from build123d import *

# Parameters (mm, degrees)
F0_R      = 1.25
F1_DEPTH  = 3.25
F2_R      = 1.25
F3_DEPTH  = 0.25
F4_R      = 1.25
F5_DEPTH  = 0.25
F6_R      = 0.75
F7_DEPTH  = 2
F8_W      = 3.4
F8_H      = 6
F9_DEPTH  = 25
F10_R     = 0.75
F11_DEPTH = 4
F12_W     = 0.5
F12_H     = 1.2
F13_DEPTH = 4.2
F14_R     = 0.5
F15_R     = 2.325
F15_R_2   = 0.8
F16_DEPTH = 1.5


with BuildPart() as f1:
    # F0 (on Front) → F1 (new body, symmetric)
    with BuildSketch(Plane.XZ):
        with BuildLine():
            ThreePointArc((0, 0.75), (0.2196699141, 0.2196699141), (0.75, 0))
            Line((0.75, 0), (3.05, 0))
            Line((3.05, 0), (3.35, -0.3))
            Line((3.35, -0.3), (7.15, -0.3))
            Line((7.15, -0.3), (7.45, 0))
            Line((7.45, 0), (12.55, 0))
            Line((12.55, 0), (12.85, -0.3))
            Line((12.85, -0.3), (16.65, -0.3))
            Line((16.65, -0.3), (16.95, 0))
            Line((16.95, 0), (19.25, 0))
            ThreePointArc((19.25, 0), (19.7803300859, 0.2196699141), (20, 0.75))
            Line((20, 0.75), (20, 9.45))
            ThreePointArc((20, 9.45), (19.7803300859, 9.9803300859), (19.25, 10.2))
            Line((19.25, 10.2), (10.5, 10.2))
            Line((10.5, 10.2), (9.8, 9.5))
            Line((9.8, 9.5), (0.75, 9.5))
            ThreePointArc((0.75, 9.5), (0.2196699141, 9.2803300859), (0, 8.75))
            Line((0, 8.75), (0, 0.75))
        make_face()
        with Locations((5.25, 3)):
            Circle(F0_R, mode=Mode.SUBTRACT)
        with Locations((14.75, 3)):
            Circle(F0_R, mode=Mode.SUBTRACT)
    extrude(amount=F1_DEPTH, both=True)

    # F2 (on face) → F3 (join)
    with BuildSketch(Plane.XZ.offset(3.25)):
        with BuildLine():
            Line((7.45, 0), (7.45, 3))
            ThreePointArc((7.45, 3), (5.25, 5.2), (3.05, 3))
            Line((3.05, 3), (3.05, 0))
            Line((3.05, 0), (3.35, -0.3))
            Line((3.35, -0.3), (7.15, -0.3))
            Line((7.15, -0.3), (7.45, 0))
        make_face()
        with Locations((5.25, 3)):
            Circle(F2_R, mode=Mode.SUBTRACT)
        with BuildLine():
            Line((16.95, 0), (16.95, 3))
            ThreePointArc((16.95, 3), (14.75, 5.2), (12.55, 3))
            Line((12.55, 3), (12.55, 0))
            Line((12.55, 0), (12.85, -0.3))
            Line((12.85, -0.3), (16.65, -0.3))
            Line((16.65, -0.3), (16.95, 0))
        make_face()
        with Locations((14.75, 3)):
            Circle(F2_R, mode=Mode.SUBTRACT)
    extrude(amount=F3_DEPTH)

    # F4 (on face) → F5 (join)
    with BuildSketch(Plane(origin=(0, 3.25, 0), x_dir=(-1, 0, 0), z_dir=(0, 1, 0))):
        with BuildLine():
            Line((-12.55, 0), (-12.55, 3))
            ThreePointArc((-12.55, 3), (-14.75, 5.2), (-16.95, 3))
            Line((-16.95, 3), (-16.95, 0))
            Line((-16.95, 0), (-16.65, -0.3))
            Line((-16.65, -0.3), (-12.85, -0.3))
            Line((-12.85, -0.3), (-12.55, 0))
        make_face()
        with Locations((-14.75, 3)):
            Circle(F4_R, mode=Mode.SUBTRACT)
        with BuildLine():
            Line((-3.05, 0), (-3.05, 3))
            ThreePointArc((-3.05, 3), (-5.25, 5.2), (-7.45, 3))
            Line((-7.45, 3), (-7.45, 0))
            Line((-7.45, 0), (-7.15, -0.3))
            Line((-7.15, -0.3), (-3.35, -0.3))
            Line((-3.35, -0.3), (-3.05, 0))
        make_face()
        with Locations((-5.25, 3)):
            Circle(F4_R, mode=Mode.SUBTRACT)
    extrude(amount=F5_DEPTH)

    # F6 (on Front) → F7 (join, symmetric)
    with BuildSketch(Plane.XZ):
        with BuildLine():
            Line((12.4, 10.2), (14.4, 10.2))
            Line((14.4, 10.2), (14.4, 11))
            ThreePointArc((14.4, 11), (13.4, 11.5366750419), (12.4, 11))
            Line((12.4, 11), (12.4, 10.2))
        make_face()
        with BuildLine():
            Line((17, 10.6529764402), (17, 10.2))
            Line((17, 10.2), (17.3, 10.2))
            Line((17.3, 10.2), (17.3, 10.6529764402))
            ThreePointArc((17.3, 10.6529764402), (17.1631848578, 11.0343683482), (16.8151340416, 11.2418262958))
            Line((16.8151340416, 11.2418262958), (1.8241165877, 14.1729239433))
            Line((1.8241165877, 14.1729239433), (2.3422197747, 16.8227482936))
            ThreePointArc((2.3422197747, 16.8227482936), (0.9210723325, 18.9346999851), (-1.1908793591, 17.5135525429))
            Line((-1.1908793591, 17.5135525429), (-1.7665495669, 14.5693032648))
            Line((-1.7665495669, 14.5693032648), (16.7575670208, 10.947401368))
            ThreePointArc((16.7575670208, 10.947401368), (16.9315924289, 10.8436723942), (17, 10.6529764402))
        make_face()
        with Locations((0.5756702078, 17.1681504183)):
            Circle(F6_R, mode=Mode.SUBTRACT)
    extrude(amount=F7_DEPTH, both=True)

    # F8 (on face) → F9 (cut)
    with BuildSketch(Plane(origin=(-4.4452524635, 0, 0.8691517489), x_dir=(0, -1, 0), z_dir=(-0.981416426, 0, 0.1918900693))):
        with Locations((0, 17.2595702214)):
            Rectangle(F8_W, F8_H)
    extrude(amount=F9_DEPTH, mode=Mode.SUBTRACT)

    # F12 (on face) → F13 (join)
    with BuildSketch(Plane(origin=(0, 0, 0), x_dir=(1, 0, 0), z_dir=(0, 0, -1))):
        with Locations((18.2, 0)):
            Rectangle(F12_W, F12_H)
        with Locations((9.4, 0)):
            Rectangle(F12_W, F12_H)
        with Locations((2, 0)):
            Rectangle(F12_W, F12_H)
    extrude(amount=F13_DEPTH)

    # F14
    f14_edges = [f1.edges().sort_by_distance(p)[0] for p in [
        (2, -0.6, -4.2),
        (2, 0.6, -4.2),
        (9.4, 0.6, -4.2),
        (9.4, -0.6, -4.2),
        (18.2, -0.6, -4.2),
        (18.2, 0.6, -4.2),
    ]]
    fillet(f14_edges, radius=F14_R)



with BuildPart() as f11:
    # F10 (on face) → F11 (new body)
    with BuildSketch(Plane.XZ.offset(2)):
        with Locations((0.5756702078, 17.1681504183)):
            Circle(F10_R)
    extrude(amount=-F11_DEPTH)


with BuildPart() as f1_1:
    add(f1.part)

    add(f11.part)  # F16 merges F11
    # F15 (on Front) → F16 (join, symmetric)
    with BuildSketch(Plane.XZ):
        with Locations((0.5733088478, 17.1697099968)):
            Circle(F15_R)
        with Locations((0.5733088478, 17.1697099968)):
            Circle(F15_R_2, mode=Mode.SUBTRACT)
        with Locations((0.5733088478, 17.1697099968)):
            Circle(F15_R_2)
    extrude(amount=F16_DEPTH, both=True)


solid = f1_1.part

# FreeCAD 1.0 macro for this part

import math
import FreeCAD as App
import Part
import Sketcher
from FreeCAD import Vector


def edges_at(feature, points):
    """Names of the edges that pass closest to the given points."""
    edges = feature.Shape.Edges
    near = lambda p: min(range(len(edges)), key=lambda i: edges[i].distToShape(Part.Vertex(*p))[0])
    return sorted({f"Edge{near(p) + 1}" for p in points})

doc = App.newDocument("Part")
params = doc.addObject("Spreadsheet::Sheet", "Params")
for row, (alias, value) in enumerate([
    ("sketch1_diameter", "2.5 mm"),
    ("sketch1_height", "8 mm"),
    ("sketch1_radius", "0.75 mm"),
    ("sketch1_width", "2.3 mm"),
    ("sketch1_width2", "3.8 mm"),
    ("pad1_length", "6.5 mm"),
    ("sketch2_diameter", "2.5 mm"),
    ("sketch2_radius", "2.2 mm"),
    ("sketch2_height", "3 mm"),
    ("sketch2_width", "3.8 mm"),
    ("pad2_length", "0.25 mm"),
    ("sketch3_diameter", "2.5 mm"),
    ("sketch3_radius", "2.2 mm"),
    ("sketch3_height", "3 mm"),
    ("sketch3_width", "3.8 mm"),
    ("pad3_length", "0.25 mm"),
    ("sketch4_diameter", "1.5 mm"),
    ("sketch4_radius", "1.2 mm"),
    ("sketch4_radius2", "0.6 mm"),
    ("sketch4_radius3", "1.8 mm"),
    ("sketch4_radius4", "0.3 mm"),
    ("pad4_length", "4 mm"),
    ("sketch5_height", "6 mm"),
    ("sketch5_width", "3.4 mm"),
    ("pocket1_length", "25 mm"),
    ("sketch6_width", "0.5 mm"),
    ("sketch6_height", "1.2 mm"),
    ("pad5_length", "4.2 mm"),
    ("fillet_radius", "0.5 mm"),
    ("sketch7_diameter", "1.5 mm"),
    ("pad6_length", "4 mm"),
    ("sketch8_diameter", "4.65 mm"),
    ("pad7_length", "3 mm"),
], start=1):
    params.set(f"A{row}", alias)
    params.set(f"B{row}", "=" + value)
    params.setAlias(f"B{row}", alias)

body = doc.addObject("PartDesign::Body", "Body")

sketch1 = body.newObject("Sketcher::SketchObject", "Sketch")
sketch1.AttachmentSupport = (doc.getObject("XZ_Plane"), [""])
sketch1.MapMode = "FlatFace"
sketch1.addGeometry([
    Part.ArcOfCircle(Part.Circle(Vector(0.75, 0.75, 0), Vector(0, 0, 1), 0.75), math.radians(180), math.radians(270)),
    Part.LineSegment(Vector(0.75, 0, 0), Vector(3.05, 0, 0)),
    Part.LineSegment(Vector(3.05, 0, 0), Vector(3.35, -0.3, 0)),
    Part.LineSegment(Vector(3.35, -0.3, 0), Vector(7.15, -0.3, 0)),
    Part.LineSegment(Vector(7.15, -0.3, 0), Vector(7.45, 0, 0)),
    Part.LineSegment(Vector(7.45, 0, 0), Vector(12.55, 0, 0)),
    Part.LineSegment(Vector(12.55, 0, 0), Vector(12.85, -0.3, 0)),
    Part.LineSegment(Vector(12.85, -0.3, 0), Vector(16.65, -0.3, 0)),
    Part.LineSegment(Vector(16.65, -0.3, 0), Vector(16.95, 0, 0)),
    Part.LineSegment(Vector(16.95, 0, 0), Vector(19.25, 0, 0)),
    Part.ArcOfCircle(Part.Circle(Vector(19.25, 0.75, 0), Vector(0, 0, 1), 0.75), math.radians(-90), math.radians(0)),
    Part.LineSegment(Vector(20, 0.75, 0), Vector(20, 9.45, 0)),
    Part.ArcOfCircle(Part.Circle(Vector(19.25, 9.45, 0), Vector(0, 0, 1), 0.75), math.radians(0), math.radians(90)),
    Part.LineSegment(Vector(19.25, 10.2, 0), Vector(10.5, 10.2, 0)),
    Part.LineSegment(Vector(10.5, 10.2, 0), Vector(9.8, 9.5, 0)),
    Part.LineSegment(Vector(9.8, 9.5, 0), Vector(0.75, 9.5, 0)),
    Part.ArcOfCircle(Part.Circle(Vector(0.75, 8.75, 0), Vector(0, 0, 1), 0.75), math.radians(90), math.radians(180)),
    Part.LineSegment(Vector(0, 8.75, 0), Vector(0, 0.75, 0)),
    Part.Circle(Vector(5.25, 3, 0), Vector(0, 0, 1), 1.25),
    Part.Circle(Vector(14.75, 3, 0), Vector(0, 0, 1), 1.25),
], False)
sketch1.addConstraint([
    Sketcher.Constraint("Tangent", 0, 2, 1, 1),
    Sketcher.Constraint("Coincident", 1, 2, 2, 1),
    Sketcher.Constraint("Coincident", 2, 2, 3, 1),
    Sketcher.Constraint("Coincident", 3, 2, 4, 1),
    Sketcher.Constraint("Coincident", 4, 2, 5, 1),
    Sketcher.Constraint("Coincident", 5, 2, 6, 1),
    Sketcher.Constraint("Coincident", 6, 2, 7, 1),
    Sketcher.Constraint("Coincident", 7, 2, 8, 1),
    Sketcher.Constraint("Coincident", 8, 2, 9, 1),
    Sketcher.Constraint("Tangent", 9, 2, 10, 1),
    Sketcher.Constraint("Tangent", 10, 2, 11, 1),
    Sketcher.Constraint("Tangent", 11, 2, 12, 1),
    Sketcher.Constraint("Tangent", 12, 2, 13, 1),
    Sketcher.Constraint("Coincident", 13, 2, 14, 1),
    Sketcher.Constraint("Coincident", 14, 2, 15, 1),
    Sketcher.Constraint("Tangent", 15, 2, 16, 1),
    Sketcher.Constraint("Tangent", 16, 2, 17, 1),
    Sketcher.Constraint("Tangent", 17, 2, 0, 1),
    Sketcher.Constraint("Horizontal", 1),
    Sketcher.Constraint("Horizontal", 3),
    Sketcher.Constraint("Horizontal", 5),
    Sketcher.Constraint("Horizontal", 7),
    Sketcher.Constraint("Horizontal", 9),
    Sketcher.Constraint("Vertical", 11),
    Sketcher.Constraint("Horizontal", 13),
    Sketcher.Constraint("Horizontal", 15),
    Sketcher.Constraint("Vertical", 17),
    Sketcher.Constraint("Equal", 0, 10),
    Sketcher.Constraint("Equal", 10, 12),
    Sketcher.Constraint("Equal", 12, 16),
    Sketcher.Constraint("Equal", 18, 19),
    Sketcher.Constraint("PointOnObject", 0, 2, -1),
    Sketcher.Constraint("PointOnObject", 4, 2, -1),
    Sketcher.Constraint("PointOnObject", 8, 2, -1),
    Sketcher.Constraint("PointOnObject", 16, 2, -2),
    Sketcher.Constraint("Perpendicular", 2, 4),
    Sketcher.Constraint("Perpendicular", 4, 6),
    Sketcher.Constraint("Perpendicular", 6, 8),
    Sketcher.Constraint("Parallel", 8, 14),
    Sketcher.Constraint("Horizontal", 18, 3, 19, 3),
    Sketcher.Constraint("Horizontal", 3, 2, 6, 2),
    Sketcher.Constraint("Equal", 3, 7),
    Sketcher.Constraint("Equal", 1, 9),
    Sketcher.Constraint("Equal", 2, 4),
    Sketcher.Constraint("Diameter", 18, 2.5),
    Sketcher.Constraint("DistanceY", 17, 2, 17, 1, 8.0),
    Sketcher.Constraint("Radius", 0, 0.75),
    Sketcher.Constraint("DistanceX", 1, 1, 1, 2, 2.3),
    Sketcher.Constraint("DistanceX", 3, 1, 3, 2, 3.8),
    Sketcher.Constraint("DistanceX", 5, 1, 5, 2, 5.1),
    Sketcher.Constraint("DistanceY", 11, 1, 11, 2, 8.7),
    Sketcher.Constraint("DistanceY", -1, 1, 18, 3, 3.0),
    Sketcher.Constraint("DistanceX", -1, 1, 10, 2, 20.0),
    Sketcher.Constraint("DistanceX", 18, 3, 10, 3, 14.0),
    Sketcher.Constraint("DistanceX", 0, 3, 19, 3, 14.0),
    Sketcher.Constraint("DistanceX", 13, 2, 13, 1, 8.75),
])
sketch1.setExpression("Constraints[44]", "Params.sketch1_diameter")
sketch1.setExpression("Constraints[45]", "Params.sketch1_height")
sketch1.setExpression("Constraints[46]", "Params.sketch1_radius")
sketch1.setExpression("Constraints[47]", "Params.sketch1_width")
sketch1.setExpression("Constraints[48]", "Params.sketch1_width2")
pad1 = body.newObject("PartDesign::Pad", "Pad")
pad1.Profile = sketch1
pad1.setExpression("Length", "Params.pad1_length")
pad1.Midplane = True

sketch2 = body.newObject("Sketcher::SketchObject", "Sketch001")
sketch2.AttachmentSupport = (doc.getObject("XZ_Plane"), [""])
sketch2.MapMode = "FlatFace"
sketch2.AttachmentOffset = App.Placement(Vector(0, 0, 3.25), App.Rotation())
sketch2.addGeometry([
    Part.LineSegment(Vector(7.45, 0, 0), Vector(7.45, 3, 0)),
    Part.ArcOfCircle(Part.Circle(Vector(5.25, 3, 0), Vector(0, 0, 1), 2.2), math.radians(0), math.radians(180)),
    Part.LineSegment(Vector(3.05, 3, 0), Vector(3.05, 0, 0)),
    Part.LineSegment(Vector(3.05, 0, 0), Vector(3.35, -0.3, 0)),
    Part.LineSegment(Vector(3.35, -0.3, 0), Vector(7.15, -0.3, 0)),
    Part.LineSegment(Vector(7.15, -0.3, 0), Vector(7.45, 0, 0)),
    Part.Circle(Vector(5.25, 3, 0), Vector(0, 0, 1), 1.25),
    Part.LineSegment(Vector(16.95, 0, 0), Vector(16.95, 3, 0)),
    Part.ArcOfCircle(Part.Circle(Vector(14.75, 3, 0), Vector(0, 0, 1), 2.2), math.radians(0), math.radians(180)),
    Part.LineSegment(Vector(12.55, 3, 0), Vector(12.55, 0, 0)),
    Part.LineSegment(Vector(12.55, 0, 0), Vector(12.85, -0.3, 0)),
    Part.LineSegment(Vector(12.85, -0.3, 0), Vector(16.65, -0.3, 0)),
    Part.LineSegment(Vector(16.65, -0.3, 0), Vector(16.95, 0, 0)),
    Part.Circle(Vector(14.75, 3, 0), Vector(0, 0, 1), 1.25),
], False)
sketch2.addConstraint([
    Sketcher.Constraint("Tangent", 0, 2, 1, 1),
    Sketcher.Constraint("Tangent", 1, 2, 2, 1),
    Sketcher.Constraint("Coincident", 2, 2, 3, 1),
    Sketcher.Constraint("Coincident", 3, 2, 4, 1),
    Sketcher.Constraint("Coincident", 4, 2, 5, 1),
    Sketcher.Constraint("Coincident", 5, 2, 0, 1),
    Sketcher.Constraint("Tangent", 7, 2, 8, 1),
    Sketcher.Constraint("Tangent", 8, 2, 9, 1),
    Sketcher.Constraint("Coincident", 9, 2, 10, 1),
    Sketcher.Constraint("Coincident", 10, 2, 11, 1),
    Sketcher.Constraint("Coincident", 11, 2, 12, 1),
    Sketcher.Constraint("Coincident", 12, 2, 7, 1),
    Sketcher.Constraint("Vertical", 0),
    Sketcher.Constraint("Vertical", 2),
    Sketcher.Constraint("Horizontal", 4),
    Sketcher.Constraint("Vertical", 7),
    Sketcher.Constraint("Vertical", 9),
    Sketcher.Constraint("Horizontal", 11),
    Sketcher.Constraint("Coincident", 6, 3, 1, 3),
    Sketcher.Constraint("Coincident", 13, 3, 8, 3),
    Sketcher.Constraint("Equal", 1, 8),
    Sketcher.Constraint("Equal", 6, 13),
    Sketcher.Constraint("PointOnObject", 2, 2, -1),
    Sketcher.Constraint("PointOnObject", 5, 2, -1),
    Sketcher.Constraint("PointOnObject", 9, 2, -1),
    Sketcher.Constraint("PointOnObject", 12, 2, -1),
    Sketcher.Constraint("Perpendicular", 3, 5),
    Sketcher.Constraint("Perpendicular", 5, 10),
    Sketcher.Constraint("Perpendicular", 10, 12),
    Sketcher.Constraint("Horizontal", 6, 3, 8, 3),
    Sketcher.Constraint("Horizontal", 4, 2, 10, 2),
    Sketcher.Constraint("Equal", 3, 5),
    Sketcher.Constraint("Diameter", 6, 2.5),
    Sketcher.Constraint("Radius", 1, 2.2),
    Sketcher.Constraint("DistanceY", 0, 1, 0, 2, 3.0),
    Sketcher.Constraint("DistanceX", 4, 1, 4, 2, 3.8),
    Sketcher.Constraint("DistanceX", 1, 3, 8, 3, 9.5),
    Sketcher.Constraint("DistanceX", -1, 1, 1, 3, 5.25),
])
sketch2.setExpression("Constraints[32]", "Params.sketch2_diameter")
sketch2.setExpression("Constraints[33]", "Params.sketch2_radius")
sketch2.setExpression("Constraints[34]", "Params.sketch2_height")
sketch2.setExpression("Constraints[35]", "Params.sketch2_width")
pad2 = body.newObject("PartDesign::Pad", "Pad001")
pad2.Profile = sketch2
pad2.setExpression("Length", "Params.pad2_length")

sketch3 = body.newObject("Sketcher::SketchObject", "Sketch002")
sketch3.AttachmentSupport = (doc.getObject("XZ_Plane"), [""])
sketch3.MapMode = "FlatFace"
sketch3.AttachmentOffset = App.Placement(Vector(0, 0, -3.25), App.Rotation())
sketch3.addGeometry([
    Part.LineSegment(Vector(12.55, 0, 0), Vector(12.55, 3, 0)),
    Part.ArcOfCircle(Part.Circle(Vector(14.75, 3, 0), Vector(0, 0, 1), 2.2), math.radians(0), math.radians(180)),
    Part.LineSegment(Vector(16.95, 3, 0), Vector(16.95, 0, 0)),
    Part.LineSegment(Vector(16.95, 0, 0), Vector(16.65, -0.3, 0)),
    Part.LineSegment(Vector(16.65, -0.3, 0), Vector(12.85, -0.3, 0)),
    Part.LineSegment(Vector(12.85, -0.3, 0), Vector(12.55, 0, 0)),
    Part.Circle(Vector(14.75, 3, 0), Vector(0, 0, 1), 1.25),
    Part.LineSegment(Vector(3.05, 0, 0), Vector(3.05, 3, 0)),
    Part.ArcOfCircle(Part.Circle(Vector(5.25, 3, 0), Vector(0, 0, 1), 2.2), math.radians(0), math.radians(180)),
    Part.LineSegment(Vector(7.45, 3, 0), Vector(7.45, 0, 0)),
    Part.LineSegment(Vector(7.45, 0, 0), Vector(7.15, -0.3, 0)),
    Part.LineSegment(Vector(7.15, -0.3, 0), Vector(3.35, -0.3, 0)),
    Part.LineSegment(Vector(3.35, -0.3, 0), Vector(3.05, 0, 0)),
    Part.Circle(Vector(5.25, 3, 0), Vector(0, 0, 1), 1.25),
], False)
sketch3.addConstraint([
    Sketcher.Constraint("Tangent", 0, 2, 1, 2),
    Sketcher.Constraint("Tangent", 1, 1, 2, 1),
    Sketcher.Constraint("Coincident", 2, 2, 3, 1),
    Sketcher.Constraint("Coincident", 3, 2, 4, 1),
    Sketcher.Constraint("Coincident", 4, 2, 5, 1),
    Sketcher.Constraint("Coincident", 5, 2, 0, 1),
    Sketcher.Constraint("Tangent", 7, 2, 8, 2),
    Sketcher.Constraint("Tangent", 8, 1, 9, 1),
    Sketcher.Constraint("Coincident", 9, 2, 10, 1),
    Sketcher.Constraint("Coincident", 10, 2, 11, 1),
    Sketcher.Constraint("Coincident", 11, 2, 12, 1),
    Sketcher.Constraint("Coincident", 12, 2, 7, 1),
    Sketcher.Constraint("Vertical", 0),
    Sketcher.Constraint("Vertical", 2),
    Sketcher.Constraint("Horizontal", 4),
    Sketcher.Constraint("Vertical", 7),
    Sketcher.Constraint("Vertical", 9),
    Sketcher.Constraint("Horizontal", 11),
    Sketcher.Constraint("Coincident", 6, 3, 1, 3),
    Sketcher.Constraint("Coincident", 13, 3, 8, 3),
    Sketcher.Constraint("Equal", 1, 8),
    Sketcher.Constraint("Equal", 6, 13),
    Sketcher.Constraint("PointOnObject", 2, 2, -1),
    Sketcher.Constraint("PointOnObject", 5, 2, -1),
    Sketcher.Constraint("PointOnObject", 9, 2, -1),
    Sketcher.Constraint("PointOnObject", 12, 2, -1),
    Sketcher.Constraint("Perpendicular", 3, 5),
    Sketcher.Constraint("Perpendicular", 5, 10),
    Sketcher.Constraint("Perpendicular", 10, 12),
    Sketcher.Constraint("Horizontal", 6, 3, 8, 3),
    Sketcher.Constraint("Horizontal", 4, 2, 10, 2),
    Sketcher.Constraint("Equal", 3, 5),
    Sketcher.Constraint("Diameter", 6, 2.5),
    Sketcher.Constraint("Radius", 1, 2.2),
    Sketcher.Constraint("DistanceY", 0, 1, 0, 2, 3.0),
    Sketcher.Constraint("DistanceX", 4, 2, 4, 1, 3.8),
    Sketcher.Constraint("DistanceX", 8, 3, 1, 3, 9.5),
    Sketcher.Constraint("DistanceX", -1, 1, 1, 3, 14.75),
])
sketch3.setExpression("Constraints[32]", "Params.sketch3_diameter")
sketch3.setExpression("Constraints[33]", "Params.sketch3_radius")
sketch3.setExpression("Constraints[34]", "Params.sketch3_height")
sketch3.setExpression("Constraints[35]", "Params.sketch3_width")
pad3 = body.newObject("PartDesign::Pad", "Pad002")
pad3.Profile = sketch3
pad3.setExpression("Length", "Params.pad3_length")
pad3.Reversed = True

sketch4 = body.newObject("Sketcher::SketchObject", "Sketch003")
sketch4.AttachmentSupport = (doc.getObject("XZ_Plane"), [""])
sketch4.MapMode = "FlatFace"
sketch4.addGeometry([
    Part.LineSegment(Vector(12.4, 10.2, 0), Vector(14.4, 10.2, 0)),
    Part.LineSegment(Vector(14.4, 10.2, 0), Vector(14.4, 11, 0)),
    Part.ArcOfCircle(Part.Circle(Vector(13.4, 10.336675, 0), Vector(0, 0, 1), 1.2), math.radians(33.55731), math.radians(146.44269)),
    Part.LineSegment(Vector(12.4, 11, 0), Vector(12.4, 10.2, 0)),
    Part.LineSegment(Vector(17, 10.652976, 0), Vector(17, 10.2, 0)),
    Part.LineSegment(Vector(17, 10.2, 0), Vector(17.3, 10.2, 0)),
    Part.LineSegment(Vector(17.3, 10.2, 0), Vector(17.3, 10.652976, 0)),
    Part.ArcOfCircle(Part.Circle(Vector(16.7, 10.652976, 0), Vector(0, 0, 1), 0.6), math.radians(0), math.radians(78.936893)),
    Part.LineSegment(Vector(16.815134, 11.241826, 0), Vector(1.824117, 14.172924, 0)),
    Part.LineSegment(Vector(1.824117, 14.172924, 0), Vector(2.34222, 16.822748, 0)),
    Part.ArcOfCircle(Part.Circle(Vector(0.57567, 17.16815, 0), Vector(0, 0, 1), 1.8), math.radians(-11.063107), math.radians(168.936893)),
    Part.LineSegment(Vector(-1.190879, 17.513553, 0), Vector(-1.76655, 14.569303, 0)),
    Part.LineSegment(Vector(-1.76655, 14.569303, 0), Vector(16.757567, 10.947401, 0)),
    Part.ArcOfCircle(Part.Circle(Vector(16.7, 10.652976, 0), Vector(0, 0, 1), 0.3), math.radians(0), math.radians(78.936893)),
    Part.Circle(Vector(0.57567, 17.16815, 0), Vector(0, 0, 1), 0.75),
], False)
sketch4.addConstraint([
    Sketcher.Constraint("Coincident", 0, 2, 1, 1),
    Sketcher.Constraint("Coincident", 1, 2, 2, 1),
    Sketcher.Constraint("Coincident", 2, 2, 3, 1),
    Sketcher.Constraint("Coincident", 3, 2, 0, 1),
    Sketcher.Constraint("Coincident", 4, 2, 5, 1),
    Sketcher.Constraint("Coincident", 5, 2, 6, 1),
    Sketcher.Constraint("Tangent", 6, 2, 7, 1),
    Sketcher.Constraint("Tangent", 7, 2, 8, 1),
    Sketcher.Constraint("Coincident", 8, 2, 9, 1),
    Sketcher.Constraint("Tangent", 9, 2, 10, 1),
    Sketcher.Constraint("Tangent", 10, 2, 11, 1),
    Sketcher.Constraint("Coincident", 11, 2, 12, 1),
    Sketcher.Constraint("Tangent", 12, 2, 13, 2),
    Sketcher.Constraint("Tangent", 13, 1, 4, 1),
    Sketcher.Constraint("Horizontal", 0),
    Sketcher.Constraint("Vertical", 1),
    Sketcher.Constraint("Vertical", 3),
    Sketcher.Constraint("Vertical", 4),
    Sketcher.Constraint("Horizontal", 5),
    Sketcher.Constraint("Vertical", 6),
    Sketcher.Constraint("Coincident", 13, 3, 7, 3),
    Sketcher.Constraint("Coincident", 14, 3, 10, 3),
    Sketcher.Constraint("Perpendicular", 8, 9),
    Sketcher.Constraint("Parallel", 9, 11),
    Sketcher.Constraint("Perpendicular", 11, 12),
    Sketcher.Constraint("Horizontal", 1, 2, 2, 2),
    Sketcher.Constraint("Horizontal", 3, 2, 4, 2),
    Sketcher.Constraint("Diameter", 14, 1.5),
    Sketcher.Constraint("Radius", 2, 1.2),
    Sketcher.Constraint("Radius", 7, 0.6),
    Sketcher.Constraint("Radius", 10, 1.8),
    Sketcher.Constraint("Radius", 13, 0.3),
    Sketcher.Constraint("DistanceX", 0, 1, 0, 2, 2.0),
    Sketcher.Constraint("Distance", 11, 3.0),
    Sketcher.Constraint("DistanceY", 1, 1, 1, 2, 0.8),
    Sketcher.Constraint("DistanceY", -1, 1, 1, 2, 11.0),
    Sketcher.Constraint("DistanceX", -1, 1, 4, 2, 17.0),
    Sketcher.Constraint("DistanceX", -1, 1, 2, 3, 13.4),
    Sketcher.Constraint("DistanceY", -1, 1, 12, 2, 10.947401),
    Sketcher.Constraint("DistanceX", 10, 2, 9, 2, 3.533099),
    Sketcher.Constraint("Distance", 8, 15.274879),
])
sketch4.setExpression("Constraints[27]", "Params.sketch4_diameter")
sketch4.setExpression("Constraints[28]", "Params.sketch4_radius")
sketch4.setExpression("Constraints[29]", "Params.sketch4_radius2")
sketch4.setExpression("Constraints[30]", "Params.sketch4_radius3")
sketch4.setExpression("Constraints[31]", "Params.sketch4_radius4")
pad4 = body.newObject("PartDesign::Pad", "Pad003")
pad4.Profile = sketch4
pad4.setExpression("Length", "Params.pad4_length")
pad4.Midplane = True

sketch5 = body.newObject("Sketcher::SketchObject", "Sketch004")
sketch5.Placement = App.Placement(Vector(-4.445252, 0, 0.869152), App.Rotation(Vector(0, -1, 0), Vector(0.191890069, 0, 0.981416426), Vector(-0.981416426, 0, 0.191890069), "ZXY"))
sketch5.addGeometry([
    Part.LineSegment(Vector(-1.7, 20.25957, 0), Vector(-1.7, 14.25957, 0)),
    Part.LineSegment(Vector(-1.7, 14.25957, 0), Vector(1.7, 14.25957, 0)),
    Part.LineSegment(Vector(1.7, 14.25957, 0), Vector(1.7, 20.25957, 0)),
    Part.LineSegment(Vector(1.7, 20.25957, 0), Vector(-1.7, 20.25957, 0)),
], False)
sketch5.addConstraint([
    Sketcher.Constraint("Coincident", 0, 2, 1, 1),
    Sketcher.Constraint("Coincident", 1, 2, 2, 1),
    Sketcher.Constraint("Coincident", 2, 2, 3, 1),
    Sketcher.Constraint("Coincident", 3, 2, 0, 1),
    Sketcher.Constraint("Vertical", 0),
    Sketcher.Constraint("Horizontal", 1),
    Sketcher.Constraint("Vertical", 2),
    Sketcher.Constraint("Horizontal", 3),
    Sketcher.Constraint("DistanceY", 0, 2, 0, 1, 6.0),
    Sketcher.Constraint("DistanceX", 1, 1, 1, 2, 3.4),
    Sketcher.Constraint("DistanceX", 0, 2, -1, 1, 1.7),
    Sketcher.Constraint("DistanceY", -1, 1, 0, 2, 14.25957),
])
sketch5.setExpression("Constraints[8]", "Params.sketch5_height")
sketch5.setExpression("Constraints[9]", "Params.sketch5_width")
pocket1 = body.newObject("PartDesign::Pocket", "Pocket")
pocket1.Profile = sketch5
pocket1.setExpression("Length", "Params.pocket1_length")
pocket1.Reversed = True

sketch6 = body.newObject("Sketcher::SketchObject", "Sketch005")
sketch6.AttachmentSupport = (doc.getObject("XY_Plane"), [""])
sketch6.MapMode = "FlatFace"
sketch6.addGeometry([
    Part.LineSegment(Vector(17.95, -0.6, 0), Vector(17.95, 0.6, 0)),
    Part.LineSegment(Vector(17.95, 0.6, 0), Vector(18.45, 0.6, 0)),
    Part.LineSegment(Vector(18.45, 0.6, 0), Vector(18.45, -0.6, 0)),
    Part.LineSegment(Vector(18.45, -0.6, 0), Vector(17.95, -0.6, 0)),
    Part.LineSegment(Vector(9.15, -0.6, 0), Vector(9.15, 0.6, 0)),
    Part.LineSegment(Vector(9.15, 0.6, 0), Vector(9.65, 0.6, 0)),
    Part.LineSegment(Vector(9.65, 0.6, 0), Vector(9.65, -0.6, 0)),
    Part.LineSegment(Vector(9.65, -0.6, 0), Vector(9.15, -0.6, 0)),
    Part.LineSegment(Vector(1.75, -0.6, 0), Vector(1.75, 0.6, 0)),
    Part.LineSegment(Vector(1.75, 0.6, 0), Vector(2.25, 0.6, 0)),
    Part.LineSegment(Vector(2.25, 0.6, 0), Vector(2.25, -0.6, 0)),
    Part.LineSegment(Vector(2.25, -0.6, 0), Vector(1.75, -0.6, 0)),
], False)
sketch6.addConstraint([
    Sketcher.Constraint("Coincident", 0, 2, 1, 1),
    Sketcher.Constraint("Coincident", 1, 2, 2, 1),
    Sketcher.Constraint("Coincident", 2, 2, 3, 1),
    Sketcher.Constraint("Coincident", 3, 2, 0, 1),
    Sketcher.Constraint("Coincident", 4, 2, 5, 1),
    Sketcher.Constraint("Coincident", 5, 2, 6, 1),
    Sketcher.Constraint("Coincident", 6, 2, 7, 1),
    Sketcher.Constraint("Coincident", 7, 2, 4, 1),
    Sketcher.Constraint("Coincident", 8, 2, 9, 1),
    Sketcher.Constraint("Coincident", 9, 2, 10, 1),
    Sketcher.Constraint("Coincident", 10, 2, 11, 1),
    Sketcher.Constraint("Coincident", 11, 2, 8, 1),
    Sketcher.Constraint("Vertical", 0),
    Sketcher.Constraint("Horizontal", 1),
    Sketcher.Constraint("Vertical", 2),
    Sketcher.Constraint("Horizontal", 3),
    Sketcher.Constraint("Vertical", 4),
    Sketcher.Constraint("Horizontal", 5),
    Sketcher.Constraint("Vertical", 6),
    Sketcher.Constraint("Horizontal", 7),
    Sketcher.Constraint("Vertical", 8),
    Sketcher.Constraint("Horizontal", 9),
    Sketcher.Constraint("Vertical", 10),
    Sketcher.Constraint("Horizontal", 11),
    Sketcher.Constraint("Horizontal", 1, 2, 4, 2),
    Sketcher.Constraint("Horizontal", 3, 2, 6, 2),
    Sketcher.Constraint("Horizontal", 5, 2, 8, 2),
    Sketcher.Constraint("Horizontal", 7, 2, 10, 2),
    Sketcher.Constraint("Equal", 3, 5),
    Sketcher.Constraint("Equal", 7, 9),
    Sketcher.Constraint("DistanceX", 1, 1, 1, 2, 0.5),
    Sketcher.Constraint("DistanceY", 0, 1, 0, 2, 1.2),
    Sketcher.Constraint("DistanceY", -1, 1, 0, 2, 0.6),
    Sketcher.Constraint("DistanceX", 4, 2, 0, 2, 8.8),
    Sketcher.Constraint("DistanceX", 8, 2, 4, 2, 7.4),
    Sketcher.Constraint("DistanceX", -1, 1, 0, 2, 17.95),
])
sketch6.setExpression("Constraints[30]", "Params.sketch6_width")
sketch6.setExpression("Constraints[31]", "Params.sketch6_height")
pad5 = body.newObject("PartDesign::Pad", "Pad004")
pad5.Profile = sketch6
pad5.setExpression("Length", "Params.pad5_length")
pad5.Reversed = True
doc.recompute()

fillet = body.newObject("PartDesign::Fillet", "Fillet")
fillet.Base = (pad5, edges_at(pad5, [
    (2, -0.6, -4.2),
    (2, 0.6, -4.2),
    (9.4, 0.6, -4.2),
    (9.4, -0.6, -4.2),
    (18.2, -0.6, -4.2),
    (18.2, 0.6, -4.2),
]))
fillet.setExpression("Radius", "Params.fillet_radius")
body2 = doc.addObject("PartDesign::Body", "Body001")

sketch7 = body2.newObject("Sketcher::SketchObject", "Sketch006")
sketch7.AttachmentSupport = (doc.getObject("XZ_Plane001"), [""])
sketch7.MapMode = "FlatFace"
sketch7.AttachmentOffset = App.Placement(Vector(0, 0, 2), App.Rotation())
sketch7.addGeometry(Part.Circle(Vector(0.57567, 17.16815, 0), Vector(0, 0, 1), 0.75), False)
sketch7.addConstraint([
    Sketcher.Constraint("Diameter", 0, 1.5),
    Sketcher.Constraint("DistanceX", -1, 1, 0, 3, 0.57567),
    Sketcher.Constraint("DistanceY", -1, 1, 0, 3, 17.16815),
])
sketch7.setExpression("Constraints[0]", "Params.sketch7_diameter")
pad6 = body2.newObject("PartDesign::Pad", "Pad005")
pad6.Profile = sketch7
pad6.setExpression("Length", "Params.pad6_length")
pad6.Reversed = True
doc.recompute()

boolean = body.newObject("PartDesign::Boolean", "Boolean")
boolean.Type = "Fuse"
boolean.addObjects([body2])

sketch8 = body.newObject("Sketcher::SketchObject", "Sketch007")
sketch8.AttachmentSupport = (doc.getObject("XZ_Plane"), [""])
sketch8.MapMode = "FlatFace"
sketch8.addGeometry(Part.Circle(Vector(0.573309, 17.16971, 0), Vector(0, 0, 1), 2.325), False)
sketch8.addConstraint([
    Sketcher.Constraint("Diameter", 0, 4.65),
    Sketcher.Constraint("DistanceX", -1, 1, 0, 3, 0.573309),
    Sketcher.Constraint("DistanceY", -1, 1, 0, 3, 17.16971),
])
sketch8.setExpression("Constraints[0]", "Params.sketch8_diameter")
pad7 = body.newObject("PartDesign::Pad", "Pad006")
pad7.Profile = sketch8
pad7.setExpression("Length", "Params.pad7_length")
pad7.Midplane = True

doc.recompute()
